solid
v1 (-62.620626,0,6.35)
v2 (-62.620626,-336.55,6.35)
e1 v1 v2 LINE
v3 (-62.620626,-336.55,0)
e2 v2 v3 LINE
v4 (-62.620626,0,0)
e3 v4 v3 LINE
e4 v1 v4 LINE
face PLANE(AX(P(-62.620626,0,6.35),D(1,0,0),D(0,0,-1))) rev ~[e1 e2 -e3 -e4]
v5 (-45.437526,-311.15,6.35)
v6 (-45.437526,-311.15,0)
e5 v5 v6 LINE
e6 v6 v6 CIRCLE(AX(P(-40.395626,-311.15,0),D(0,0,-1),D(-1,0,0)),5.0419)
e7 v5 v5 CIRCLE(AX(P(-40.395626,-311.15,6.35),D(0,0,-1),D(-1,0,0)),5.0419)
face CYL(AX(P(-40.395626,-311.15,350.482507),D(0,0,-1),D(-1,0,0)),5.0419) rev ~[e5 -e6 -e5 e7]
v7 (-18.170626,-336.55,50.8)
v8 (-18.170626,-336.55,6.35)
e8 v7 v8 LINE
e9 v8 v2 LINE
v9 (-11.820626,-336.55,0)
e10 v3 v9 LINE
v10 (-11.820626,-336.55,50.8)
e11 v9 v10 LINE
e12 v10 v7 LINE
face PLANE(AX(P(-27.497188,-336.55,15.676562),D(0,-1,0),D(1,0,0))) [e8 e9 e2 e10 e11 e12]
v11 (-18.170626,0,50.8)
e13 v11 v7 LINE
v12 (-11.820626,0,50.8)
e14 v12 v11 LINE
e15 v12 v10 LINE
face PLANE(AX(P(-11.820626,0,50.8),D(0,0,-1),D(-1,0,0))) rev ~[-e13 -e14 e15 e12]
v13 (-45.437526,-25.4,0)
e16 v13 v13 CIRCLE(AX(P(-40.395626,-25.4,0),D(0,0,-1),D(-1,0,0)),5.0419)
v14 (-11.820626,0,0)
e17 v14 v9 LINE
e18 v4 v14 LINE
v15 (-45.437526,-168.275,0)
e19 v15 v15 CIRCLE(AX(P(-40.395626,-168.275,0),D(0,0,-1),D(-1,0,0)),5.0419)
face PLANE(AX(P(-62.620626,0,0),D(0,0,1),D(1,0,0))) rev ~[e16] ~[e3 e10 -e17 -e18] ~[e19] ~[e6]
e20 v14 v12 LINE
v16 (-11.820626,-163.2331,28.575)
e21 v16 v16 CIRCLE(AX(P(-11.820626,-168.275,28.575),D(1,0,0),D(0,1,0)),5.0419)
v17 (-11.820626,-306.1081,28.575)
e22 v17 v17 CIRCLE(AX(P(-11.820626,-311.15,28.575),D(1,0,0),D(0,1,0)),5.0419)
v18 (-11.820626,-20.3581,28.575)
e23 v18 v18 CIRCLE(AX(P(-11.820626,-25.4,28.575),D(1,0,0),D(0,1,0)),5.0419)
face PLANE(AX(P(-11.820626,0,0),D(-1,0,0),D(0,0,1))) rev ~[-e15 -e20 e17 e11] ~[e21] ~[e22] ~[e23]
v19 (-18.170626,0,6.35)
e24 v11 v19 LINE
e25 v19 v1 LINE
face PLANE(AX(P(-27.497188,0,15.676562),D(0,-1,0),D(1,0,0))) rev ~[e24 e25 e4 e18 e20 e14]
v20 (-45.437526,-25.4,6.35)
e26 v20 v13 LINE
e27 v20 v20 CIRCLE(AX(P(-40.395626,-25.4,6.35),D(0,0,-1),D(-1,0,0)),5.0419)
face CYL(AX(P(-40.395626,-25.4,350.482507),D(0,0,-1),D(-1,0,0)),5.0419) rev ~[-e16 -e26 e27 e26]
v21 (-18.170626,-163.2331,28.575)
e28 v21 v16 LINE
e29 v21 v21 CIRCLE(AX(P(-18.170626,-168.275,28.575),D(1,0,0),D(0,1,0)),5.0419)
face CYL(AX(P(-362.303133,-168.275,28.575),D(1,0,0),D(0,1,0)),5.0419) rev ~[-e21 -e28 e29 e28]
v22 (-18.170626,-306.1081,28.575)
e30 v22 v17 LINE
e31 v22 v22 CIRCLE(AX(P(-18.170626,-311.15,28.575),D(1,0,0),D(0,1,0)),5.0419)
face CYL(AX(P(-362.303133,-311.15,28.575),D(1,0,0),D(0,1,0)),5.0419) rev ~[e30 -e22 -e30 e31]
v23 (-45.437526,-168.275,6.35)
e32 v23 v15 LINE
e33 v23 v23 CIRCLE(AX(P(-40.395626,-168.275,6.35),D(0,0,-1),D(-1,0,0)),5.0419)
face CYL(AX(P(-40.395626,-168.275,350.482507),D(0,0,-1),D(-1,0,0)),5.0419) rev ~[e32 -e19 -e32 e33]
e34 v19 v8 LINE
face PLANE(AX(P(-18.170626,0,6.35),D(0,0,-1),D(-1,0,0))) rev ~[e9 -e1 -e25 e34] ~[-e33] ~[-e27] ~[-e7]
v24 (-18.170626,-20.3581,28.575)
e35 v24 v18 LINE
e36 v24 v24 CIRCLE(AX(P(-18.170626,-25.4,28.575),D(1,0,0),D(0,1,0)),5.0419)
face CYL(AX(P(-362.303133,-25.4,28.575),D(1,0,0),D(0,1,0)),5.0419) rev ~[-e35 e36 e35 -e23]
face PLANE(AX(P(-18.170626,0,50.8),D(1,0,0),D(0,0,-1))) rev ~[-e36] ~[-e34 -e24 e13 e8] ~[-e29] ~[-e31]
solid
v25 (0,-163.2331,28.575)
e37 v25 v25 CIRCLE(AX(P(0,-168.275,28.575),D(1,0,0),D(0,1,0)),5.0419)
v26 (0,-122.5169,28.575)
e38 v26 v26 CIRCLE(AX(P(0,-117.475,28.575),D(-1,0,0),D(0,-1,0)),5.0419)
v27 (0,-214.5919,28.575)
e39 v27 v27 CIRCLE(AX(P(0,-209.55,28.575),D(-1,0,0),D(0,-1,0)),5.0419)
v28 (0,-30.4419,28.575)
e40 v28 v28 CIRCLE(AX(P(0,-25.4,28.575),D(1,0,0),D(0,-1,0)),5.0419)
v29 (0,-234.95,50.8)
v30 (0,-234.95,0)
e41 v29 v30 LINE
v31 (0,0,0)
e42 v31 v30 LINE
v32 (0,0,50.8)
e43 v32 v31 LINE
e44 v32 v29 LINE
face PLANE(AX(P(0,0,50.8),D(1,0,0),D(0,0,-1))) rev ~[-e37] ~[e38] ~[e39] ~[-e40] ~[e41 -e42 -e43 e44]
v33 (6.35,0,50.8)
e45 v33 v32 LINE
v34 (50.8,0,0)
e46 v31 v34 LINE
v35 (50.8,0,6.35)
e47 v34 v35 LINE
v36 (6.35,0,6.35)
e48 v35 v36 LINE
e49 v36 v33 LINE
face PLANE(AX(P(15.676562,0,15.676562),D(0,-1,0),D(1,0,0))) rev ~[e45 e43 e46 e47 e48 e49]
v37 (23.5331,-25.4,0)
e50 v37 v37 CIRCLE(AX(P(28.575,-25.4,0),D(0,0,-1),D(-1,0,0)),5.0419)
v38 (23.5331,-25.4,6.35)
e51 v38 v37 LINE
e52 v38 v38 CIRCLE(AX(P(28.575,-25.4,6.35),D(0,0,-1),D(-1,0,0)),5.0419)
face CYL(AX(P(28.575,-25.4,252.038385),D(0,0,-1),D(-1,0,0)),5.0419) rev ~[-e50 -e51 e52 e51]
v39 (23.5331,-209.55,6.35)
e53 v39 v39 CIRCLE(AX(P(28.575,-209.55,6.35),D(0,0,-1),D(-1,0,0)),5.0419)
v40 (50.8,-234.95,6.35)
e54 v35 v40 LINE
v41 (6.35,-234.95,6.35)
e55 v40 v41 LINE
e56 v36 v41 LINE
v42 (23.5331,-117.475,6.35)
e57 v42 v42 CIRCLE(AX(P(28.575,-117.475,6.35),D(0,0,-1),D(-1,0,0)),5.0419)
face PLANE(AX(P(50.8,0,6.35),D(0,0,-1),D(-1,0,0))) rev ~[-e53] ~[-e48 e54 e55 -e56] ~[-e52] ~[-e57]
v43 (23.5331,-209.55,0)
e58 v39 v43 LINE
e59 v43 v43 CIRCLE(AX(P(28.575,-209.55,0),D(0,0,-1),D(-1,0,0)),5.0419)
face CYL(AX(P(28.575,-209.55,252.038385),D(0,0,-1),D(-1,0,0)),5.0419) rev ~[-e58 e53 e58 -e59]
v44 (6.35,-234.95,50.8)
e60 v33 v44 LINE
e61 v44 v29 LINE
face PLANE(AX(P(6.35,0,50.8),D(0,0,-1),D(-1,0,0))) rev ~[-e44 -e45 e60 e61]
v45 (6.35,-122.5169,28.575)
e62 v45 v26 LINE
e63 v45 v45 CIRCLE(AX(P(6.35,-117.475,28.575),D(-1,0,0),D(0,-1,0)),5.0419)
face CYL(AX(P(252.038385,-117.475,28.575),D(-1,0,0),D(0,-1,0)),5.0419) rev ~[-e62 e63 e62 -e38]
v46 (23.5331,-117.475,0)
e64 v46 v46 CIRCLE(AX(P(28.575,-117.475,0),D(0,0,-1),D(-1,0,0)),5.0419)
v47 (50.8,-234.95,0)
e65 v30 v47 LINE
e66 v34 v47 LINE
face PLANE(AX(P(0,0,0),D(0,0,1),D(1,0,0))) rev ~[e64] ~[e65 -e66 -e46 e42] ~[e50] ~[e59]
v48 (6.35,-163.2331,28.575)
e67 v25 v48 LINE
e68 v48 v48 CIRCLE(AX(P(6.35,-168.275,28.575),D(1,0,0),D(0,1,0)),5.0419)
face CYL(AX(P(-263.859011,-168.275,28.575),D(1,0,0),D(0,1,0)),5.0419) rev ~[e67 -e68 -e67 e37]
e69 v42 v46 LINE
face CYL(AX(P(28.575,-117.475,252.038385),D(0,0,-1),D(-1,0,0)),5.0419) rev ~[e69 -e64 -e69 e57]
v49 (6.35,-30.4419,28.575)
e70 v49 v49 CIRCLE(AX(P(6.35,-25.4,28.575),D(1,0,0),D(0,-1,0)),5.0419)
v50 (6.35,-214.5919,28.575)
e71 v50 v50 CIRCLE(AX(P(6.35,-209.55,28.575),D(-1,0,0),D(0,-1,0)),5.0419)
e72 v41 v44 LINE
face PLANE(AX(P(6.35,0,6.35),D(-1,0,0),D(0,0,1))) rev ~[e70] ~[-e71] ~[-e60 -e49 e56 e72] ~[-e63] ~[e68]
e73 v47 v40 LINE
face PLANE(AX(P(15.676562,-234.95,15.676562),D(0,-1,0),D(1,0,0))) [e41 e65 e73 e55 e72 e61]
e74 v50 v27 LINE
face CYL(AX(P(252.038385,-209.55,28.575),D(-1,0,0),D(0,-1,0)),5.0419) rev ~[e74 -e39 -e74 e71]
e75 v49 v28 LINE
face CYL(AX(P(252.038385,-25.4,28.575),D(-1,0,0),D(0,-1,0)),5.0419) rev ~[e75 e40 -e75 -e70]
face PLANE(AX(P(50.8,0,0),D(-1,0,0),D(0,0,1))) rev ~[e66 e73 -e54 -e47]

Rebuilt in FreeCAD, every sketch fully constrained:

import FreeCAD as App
import Part
import Sketcher

V = App.Vector
Q = App.Units.Quantity


def add_polygon(sketch, points):
    """Adds a closed chain of lines whose ends are joined by coincident constraints."""
    first, n = sketch.GeometryCount, len(points)
    for a, b in zip(points, points[1:] + points[:1]):
        sketch.addGeometry(Part.LineSegment(App.Vector(*a, 0), App.Vector(*b, 0)), False)
    for i in range(n):
        sketch.addConstraint(Sketcher.Constraint("Coincident", first + i, 2, first + (i + 1) % n, 1))

doc = App.newDocument("Part")
body = doc.addObject("PartDesign::Body", "Body")

# Sketch on XZ plane
sketch1 = body.newObject("Sketcher::SketchObject", "Sketch")
sketch1.AttachmentSupport = (doc.getObject("XZ_Plane"), [""])
sketch1.MapMode = "FlatFace"
add_polygon(sketch1, [(0, 51), (0, 0), (51, 0), (51, 6), (6, 6), (6, 51)])  # lines 0-5
sketch1.addConstraint(Sketcher.Constraint("Vertical", 0))
sketch1.addConstraint(Sketcher.Constraint("Horizontal", 1))
sketch1.addConstraint(Sketcher.Constraint("Vertical", 2))
sketch1.addConstraint(Sketcher.Constraint("Horizontal", 3))
sketch1.addConstraint(Sketcher.Constraint("Vertical", 4))
sketch1.addConstraint(Sketcher.Constraint("Horizontal", 5))
sketch1.addConstraint(Sketcher.Constraint("Coincident", 0, 2, -1, 1))
sketch1.addConstraint(Sketcher.Constraint("Equal", 1, 0))
sketch1.addConstraint(Sketcher.Constraint("Equal", 5, 2))
sketch1.addConstraint(Sketcher.Constraint("DistanceX", 1, 1, 1, 2, Q("2 in")))
sketch1.addConstraint(Sketcher.Constraint("DistanceX", 3, 2, 3, 1, Q("1.75 in")))
pad1 = body.newObject("PartDesign::Pad", "Pad")
pad1.Profile = sketch1
pad1.Length = Q("9.25 in")

# Sketch on YZ plane
sketch2 = body.newObject("Sketcher::SketchObject", "Sketch001")
sketch2.AttachmentSupport = (doc.getObject("YZ_Plane"), [""])
sketch2.MapMode = "FlatFace"
sketch2.AttachmentOffset = App.Placement(V(0, 0, 0.25 * 25.4), App.Rotation())
sketch2.addGeometry(Part.Circle(V(-25, 29, 0), V(0, 0, 1), 5), False)
sketch2.addGeometry(Part.Circle(V(-117, 29, 0), V(0, 0, 1), 5), False)
sketch2.addGeometry(Part.Circle(V(-210, 29, 0), V(0, 0, 1), 5), False)
sketch2.addConstraint(Sketcher.Constraint("Equal", 0, 1))
sketch2.addConstraint(Sketcher.Constraint("Equal", 1, 2))
sketch2.addConstraint(Sketcher.Constraint("Horizontal", 0, 3, 1, 3))
sketch2.addConstraint(Sketcher.Constraint("Horizontal", 1, 3, 2, 3))
sketch2.addConstraint(Sketcher.Constraint("Diameter", 0, Q("0.397 in")))
sketch2.addConstraint(Sketcher.Constraint("DistanceX", 0, 3, -1, 1, Q("1 in")))
sketch2.addConstraint(Sketcher.Constraint("DistanceX", 2, 3, -1, 1, Q("8.25 in")))
sketch2.addConstraint(Sketcher.Constraint("DistanceY", -1, 1, 0, 3, Q("1.125 in")))
sketch2.addConstraint(Sketcher.Constraint("DistanceX", 1, 3, -1, 1, Q("4.625 in")))
doc.recompute()
hole = body.newObject("PartDesign::Hole", "Hole")
hole.Profile = sketch2
hole.ThreadType = "None"
hole.Diameter = Q("0.397 in")
hole.DepthType = "ThroughAll"

# Sketch on XY plane
sketch3 = body.newObject("Sketcher::SketchObject", "Sketch002")
sketch3.AttachmentSupport = (doc.getObject("XY_Plane"), [""])
sketch3.MapMode = "FlatFace"
sketch3.AttachmentOffset = App.Placement(V(0, 0, 0.25 * 25.4), App.Rotation())
sketch3.addGeometry(Part.Circle(V(29, -210, 0), V(0, 0, 1), 5), False)
sketch3.addGeometry(Part.Circle(V(29, -25, 0), V(0, 0, 1), 5), False)
sketch3.addGeometry(Part.Circle(V(29, -117, 0), V(0, 0, 1), 5), False)
sketch3.addConstraint(Sketcher.Constraint("Equal", 0, 1))
sketch3.addConstraint(Sketcher.Constraint("Equal", 1, 2))
sketch3.addConstraint(Sketcher.Constraint("Vertical", 0, 3, 1, 3))
sketch3.addConstraint(Sketcher.Constraint("Vertical", 1, 3, 2, 3))
sketch3.addConstraint(Sketcher.Constraint("Diameter", 0, Q("0.397 in")))
sketch3.addConstraint(Sketcher.Constraint("DistanceY", 1, 3, -1, 1, Q("1 in")))
sketch3.addConstraint(Sketcher.Constraint("DistanceY", 0, 3, -1, 1, Q("8.25 in")))
sketch3.addConstraint(Sketcher.Constraint("DistanceX", -1, 1, 0, 3, Q("1.125 in")))
sketch3.addConstraint(Sketcher.Constraint("DistanceY", 2, 3, -1, 1, Q("4.625 in")))
doc.recompute()
hole2 = body.newObject("PartDesign::Hole", "Hole001")
hole2.Profile = sketch3
hole2.ThreadType = "None"
hole2.Diameter = Q("0.397 in")
hole2.DepthType = "ThroughAll"

# Sketch on YZ plane
sketch4 = body.newObject("Sketcher::SketchObject", "Sketch003")
sketch4.AttachmentSupport = (doc.getObject("YZ_Plane"), [""])
sketch4.MapMode = "FlatFace"
sketch4.AttachmentOffset = App.Placement(V(0, 0, -18.170626), App.Rotation())
sketch4.addGeometry(Part.Circle(V(-25, 29, 0), V(0, 0, 1), 5), False)
sketch4.addGeometry(Part.Circle(V(-168, 29, 0), V(0, 0, 1), 5), False)
sketch4.addGeometry(Part.Circle(V(-311, 29, 0), V(0, 0, 1), 5), False)
sketch4.addConstraint(Sketcher.Constraint("Equal", 0, 1))
sketch4.addConstraint(Sketcher.Constraint("Equal", 1, 2))
sketch4.addConstraint(Sketcher.Constraint("Horizontal", 0, 3, 1, 3))
sketch4.addConstraint(Sketcher.Constraint("Horizontal", 1, 3, 2, 3))
sketch4.addConstraint(Sketcher.Constraint("Diameter", 0, Q("0.397 in")))
sketch4.addConstraint(Sketcher.Constraint("DistanceX", 0, 3, -1, 1, Q("1 in")))
sketch4.addConstraint(Sketcher.Constraint("DistanceX", 2, 3, -1, 1, Q("12.25 in")))
sketch4.addConstraint(Sketcher.Constraint("DistanceY", -1, 1, 0, 3, Q("1.125 in")))
sketch4.addConstraint(Sketcher.Constraint("DistanceX", 1, 3, -1, 1, Q("6.625 in")))
doc.recompute()
hole3 = body.newObject("PartDesign::Hole", "Hole002")
hole3.Profile = sketch4
hole3.ThreadType = "None"
hole3.Diameter = Q("0.397 in")
hole3.DepthType = "ThroughAll"
hole3.Reversed = True
body2 = doc.addObject("PartDesign::Body", "Body001")

# Sketch on XZ plane
sketch5 = body2.newObject("Sketcher::SketchObject", "Sketch004")
sketch5.AttachmentSupport = (doc.getObject("XZ_Plane001"), [""])
sketch5.MapMode = "FlatFace"
add_polygon(sketch5, [(-63, 0), (-12, 0), (-12, 51), (-18, 51), (-18, 6), (-63, 6)])  # lines 0-5
sketch5.addConstraint(Sketcher.Constraint("Horizontal", 0))
sketch5.addConstraint(Sketcher.Constraint("Vertical", 1))
sketch5.addConstraint(Sketcher.Constraint("Horizontal", 2))
sketch5.addConstraint(Sketcher.Constraint("Vertical", 3))
sketch5.addConstraint(Sketcher.Constraint("Horizontal", 4))
sketch5.addConstraint(Sketcher.Constraint("Vertical", 5))
sketch5.addConstraint(Sketcher.Constraint("PointOnObject", 0, 2, -1))
sketch5.addConstraint(Sketcher.Constraint("Equal", 0, 1))
sketch5.addConstraint(Sketcher.Constraint("Equal", 4, 3))
sketch5.addConstraint(Sketcher.Constraint("DistanceX", 0, 1, 0, 2, Q("2 in")))
sketch5.addConstraint(Sketcher.Constraint("DistanceX", 2, 2, 2, 1, Q("0.25 in")))
sketch5.addConstraint(Sketcher.Constraint("DistanceX", 0, 2, -1, 1, Q("11.820626 mm")))
pad2 = body2.newObject("PartDesign::Pad", "Pad001")
pad2.Profile = sketch5
pad2.Length = Q("13.25 in")

# Sketch on YZ plane
sketch6 = body2.newObject("Sketcher::SketchObject", "Sketch005")
sketch6.AttachmentSupport = (doc.getObject("YZ_Plane001"), [""])
sketch6.MapMode = "FlatFace"
sketch6.AttachmentOffset = App.Placement(V(0, 0, -18.170626), App.Rotation())
sketch6.addGeometry(Part.Circle(V(-25, 29, 0), V(0, 0, 1), 5), False)
sketch6.addGeometry(Part.Circle(V(-168, 29, 0), V(0, 0, 1), 5), False)
sketch6.addGeometry(Part.Circle(V(-311, 29, 0), V(0, 0, 1), 5), False)
sketch6.addConstraint(Sketcher.Constraint("Equal", 0, 1))
sketch6.addConstraint(Sketcher.Constraint("Equal", 1, 2))
sketch6.addConstraint(Sketcher.Constraint("Horizontal", 0, 3, 1, 3))
sketch6.addConstraint(Sketcher.Constraint("Horizontal", 1, 3, 2, 3))
sketch6.addConstraint(Sketcher.Constraint("Diameter", 0, Q("0.397 in")))
sketch6.addConstraint(Sketcher.Constraint("DistanceX", 0, 3, -1, 1, Q("1 in")))
sketch6.addConstraint(Sketcher.Constraint("DistanceX", 2, 3, -1, 1, Q("12.25 in")))
sketch6.addConstraint(Sketcher.Constraint("DistanceY", -1, 1, 0, 3, Q("1.125 in")))
sketch6.addConstraint(Sketcher.Constraint("DistanceX", 1, 3, -1, 1, Q("6.625 in")))
doc.recompute()
hole4 = body2.newObject("PartDesign::Hole", "Hole003")
hole4.Profile = sketch6
hole4.ThreadType = "None"
hole4.Diameter = Q("0.397 in")
hole4.DepthType = "ThroughAll"
hole4.Reversed = True

# Sketch on XY plane
sketch7 = body2.newObject("Sketcher::SketchObject", "Sketch006")
sketch7.AttachmentSupport = (doc.getObject("XY_Plane001"), [""])
sketch7.MapMode = "FlatFace"
sketch7.AttachmentOffset = App.Placement(V(0, 0, 0.25 * 25.4), App.Rotation())
sketch7.addGeometry(Part.Circle(V(-40, -168, 0), V(0, 0, 1), 5), False)
sketch7.addGeometry(Part.Circle(V(-40, -25, 0), V(0, 0, 1), 5), False)
sketch7.addGeometry(Part.Circle(V(-40, -311, 0), V(0, 0, 1), 5), False)
sketch7.addConstraint(Sketcher.Constraint("Equal", 0, 1))
sketch7.addConstraint(Sketcher.Constraint("Equal", 1, 2))
sketch7.addConstraint(Sketcher.Constraint("Vertical", 0, 3, 1, 3))
sketch7.addConstraint(Sketcher.Constraint("Vertical", 1, 3, 2, 3))
sketch7.addConstraint(Sketcher.Constraint("Diameter", 0, Q("0.397 in")))
sketch7.addConstraint(Sketcher.Constraint("DistanceY", 1, 3, -1, 1, Q("1 in")))
sketch7.addConstraint(Sketcher.Constraint("DistanceY", 2, 3, -1, 1, Q("12.25 in")))
sketch7.addConstraint(Sketcher.Constraint("DistanceY", 0, 3, -1, 1, Q("6.625 in")))
sketch7.addConstraint(Sketcher.Constraint("DistanceX", 0, 3, -1, 1, Q("40.395626 mm")))
doc.recompute()
hole5 = body2.newObject("PartDesign::Hole", "Hole004")
hole5.Profile = sketch7
hole5.ThreadType = "None"
hole5.Diameter = Q("0.397 in")
hole5.DepthType = "ThroughAll"

doc.recompute()
